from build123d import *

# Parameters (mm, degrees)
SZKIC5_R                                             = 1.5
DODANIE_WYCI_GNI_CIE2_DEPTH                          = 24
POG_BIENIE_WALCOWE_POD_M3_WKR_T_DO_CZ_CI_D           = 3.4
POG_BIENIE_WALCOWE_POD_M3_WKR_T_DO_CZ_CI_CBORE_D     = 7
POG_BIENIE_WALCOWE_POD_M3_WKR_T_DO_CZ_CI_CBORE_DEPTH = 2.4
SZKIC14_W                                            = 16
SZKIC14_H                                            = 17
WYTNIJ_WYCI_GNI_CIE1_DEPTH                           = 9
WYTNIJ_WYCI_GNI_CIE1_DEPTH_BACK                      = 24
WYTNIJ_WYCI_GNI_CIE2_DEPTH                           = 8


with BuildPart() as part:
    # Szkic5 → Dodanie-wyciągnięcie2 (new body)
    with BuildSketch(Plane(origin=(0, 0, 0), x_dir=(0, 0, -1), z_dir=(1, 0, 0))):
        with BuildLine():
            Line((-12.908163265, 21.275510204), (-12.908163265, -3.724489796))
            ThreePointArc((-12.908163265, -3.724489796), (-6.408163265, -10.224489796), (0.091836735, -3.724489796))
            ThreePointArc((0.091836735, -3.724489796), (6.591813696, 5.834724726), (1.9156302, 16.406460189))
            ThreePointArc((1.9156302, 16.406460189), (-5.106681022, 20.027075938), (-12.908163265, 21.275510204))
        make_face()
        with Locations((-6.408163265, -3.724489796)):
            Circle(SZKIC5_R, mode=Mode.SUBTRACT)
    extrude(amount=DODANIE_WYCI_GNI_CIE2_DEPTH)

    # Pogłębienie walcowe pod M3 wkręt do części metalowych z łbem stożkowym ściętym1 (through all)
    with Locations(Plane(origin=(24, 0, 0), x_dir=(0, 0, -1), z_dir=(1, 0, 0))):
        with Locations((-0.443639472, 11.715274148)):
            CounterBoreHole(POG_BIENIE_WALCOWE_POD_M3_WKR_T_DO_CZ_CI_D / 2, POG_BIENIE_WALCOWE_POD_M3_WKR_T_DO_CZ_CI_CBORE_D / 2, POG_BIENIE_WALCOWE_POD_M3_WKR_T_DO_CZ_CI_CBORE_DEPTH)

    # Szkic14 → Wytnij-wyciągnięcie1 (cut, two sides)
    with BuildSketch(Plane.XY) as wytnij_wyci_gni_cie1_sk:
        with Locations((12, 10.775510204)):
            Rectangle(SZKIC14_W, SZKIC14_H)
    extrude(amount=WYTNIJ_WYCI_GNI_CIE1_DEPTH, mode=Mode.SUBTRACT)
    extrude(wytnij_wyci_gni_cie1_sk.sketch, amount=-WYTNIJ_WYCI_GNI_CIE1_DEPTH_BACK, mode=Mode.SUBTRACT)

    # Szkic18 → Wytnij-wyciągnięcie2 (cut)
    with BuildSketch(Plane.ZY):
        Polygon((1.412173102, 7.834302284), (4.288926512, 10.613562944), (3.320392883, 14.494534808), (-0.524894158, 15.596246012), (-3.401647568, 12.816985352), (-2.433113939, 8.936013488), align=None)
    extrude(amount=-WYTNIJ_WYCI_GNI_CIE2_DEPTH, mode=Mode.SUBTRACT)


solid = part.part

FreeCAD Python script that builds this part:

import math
import FreeCAD as App
import Part
import Sketcher
from FreeCAD import Vector
Q = App.Units.Quantity


def add_polygon(sketch, points):
    """Adds a closed chain of lines whose ends are joined by coincident constraints."""
    first, n = sketch.GeometryCount, len(points)
    for a, b in zip(points, points[1:] + points[:1]):
        sketch.addGeometry(Part.LineSegment(App.Vector(*a, 0), App.Vector(*b, 0)), False)
    for i in range(n):
        sketch.addConstraint(Sketcher.Constraint("Coincident", first + i, 2, first + (i + 1) % n, 1))

doc = App.newDocument("Part")
body = doc.addObject("PartDesign::Body", "Body")

# Sketch on YZ plane
sketch1 = body.newObject("Sketcher::SketchObject", "Sketch")
sketch1.AttachmentSupport = (doc.getObject("YZ_Plane"), [""])
sketch1.MapMode = "FlatFace"
sketch1.addGeometry([
    Part.LineSegment(Vector(21.3, 12.9, 0), Vector(-3.7, 12.9, 0)),  # 0
    Part.ArcOfCircle(Part.Circle(Vector(-3.7, 6.4, 0), Vector(0, 0, 1), 6.5), math.radians(90), math.radians(270)),  # 1
    Part.ArcOfCircle(Part.Circle(Vector(6.9, 5.3, 0), Vector(0, 0, 1), 11.9), math.radians(-153), math.radians(-37)),  # 2
    Part.ArcOfCircle(Part.Circle(Vector(-3.7, 12.9, 0), Vector(0, 0, 1), 25), math.radians(-36), math.radians(0)),  # 3
    Part.Circle(Vector(-3.7, 6.4, 0), Vector(0, 0, 1), 1.5),  # 4
], False)
sketch1.addConstraint([
    Sketcher.Constraint("Tangent", 0, 2, 1, 1),
    Sketcher.Constraint("Coincident", 1, 2, 2, 1),
    Sketcher.Constraint("Coincident", 2, 2, 3, 1),
    Sketcher.Constraint("Coincident", 3, 2, 0, 1),
    Sketcher.Constraint("Horizontal", 0),
    Sketcher.Constraint("Coincident", 4, 3, 1, 3),
    Sketcher.Constraint("Coincident", 0, 2, 3, 3),
    Sketcher.Constraint("Vertical", 0, 2, 1, 2),
    Sketcher.Constraint("Diameter", 4, Q("3 mm")),
    Sketcher.Constraint("Radius", 3, Q("25 mm")),
    Sketcher.Constraint("Radius", 1, Q("6.5 mm")),
    Sketcher.Constraint("Radius", 2, Q("11.907779 mm")),
    Sketcher.Constraint("DistanceX", 1, 3, -1, 1, Q("3.72449 mm")),
    Sketcher.Constraint("DistanceX", -1, 1, 2, 2, Q("16.40646 mm")),
    Sketcher.Constraint("DistanceY", 2, 2, -1, 1, Q("1.91563 mm")),
])
pad1 = body.newObject("PartDesign::Pad", "Pad")
pad1.Profile = sketch1
pad1.Length = 24

# Sketch on YZ plane
sketch2 = body.newObject("Sketcher::SketchObject", "Sketch001")
sketch2.AttachmentSupport = (doc.getObject("YZ_Plane"), [""])
sketch2.MapMode = "FlatFace"
sketch2.AttachmentOffset = App.Placement(Vector(0, 0, 24), App.Rotation())
sketch2.addGeometry(Part.Circle(Vector(11.7, 0.4, 0), Vector(0, 0, 1), 1.7), False)
sketch2.addConstraint([
    Sketcher.Constraint("Diameter", 0, Q("3.4 mm")),
    Sketcher.Constraint("DistanceY", -1, 1, 0, 3, Q("0.443639 mm")),
    Sketcher.Constraint("DistanceX", -1, 1, 0, 3, Q("11.715274 mm")),
])
doc.recompute()
hole = body.newObject("PartDesign::Hole", "Hole")
hole.Profile = sketch2
hole.ThreadType = "None"
hole.Diameter = 3.4
hole.DepthType = "ThroughAll"
hole.HoleCutType = "Counterbore"
hole.HoleCutDiameter = 7
hole.HoleCutDepth = 2.4

# Sketch on XY plane
sketch3 = body.newObject("Sketcher::SketchObject", "Sketch002")
sketch3.AttachmentSupport = (doc.getObject("XY_Plane"), [""])
sketch3.MapMode = "FlatFace"
add_polygon(sketch3, [(4, 19), (4, 2), (20, 2), (20, 19)])  # lines 0-3
sketch3.addConstraint([
    Sketcher.Constraint("Vertical", 0),
    Sketcher.Constraint("Horizontal", 1),
    Sketcher.Constraint("Vertical", 2),
    Sketcher.Constraint("Horizontal", 3),
    Sketcher.Constraint("DistanceX", 1, 1, 1, 2, Q("16 mm")),
    Sketcher.Constraint("DistanceY", 0, 2, 0, 1, Q("17 mm")),
    Sketcher.Constraint("DistanceX", -1, 1, 0, 2, Q("4 mm")),
    Sketcher.Constraint("DistanceY", -1, 1, 0, 2, Q("2.27551 mm")),
])
pocket1 = body.newObject("PartDesign::Pocket", "Pocket")
pocket1.Profile = sketch3
pocket1.Type = "TwoLengths"
pocket1.Length = 9
pocket1.Length2 = 24
pocket1.Reversed = True

# Sketch on YZ plane
sketch4 = body.newObject("Sketcher::SketchObject", "Sketch003")
sketch4.AttachmentSupport = (doc.getObject("YZ_Plane"), [""])
sketch4.MapMode = "FlatFace"
add_polygon(sketch4, [(7.8, 1.4), (10.6, 4.3), (14.5, 3.3), (15.6, -0.5), (12.8, -3.4), (8.9, -2.4)])  # lines 0-5
sketch4.addConstraint([
    Sketcher.Constraint("Parallel", 0, 3),
    Sketcher.Constraint("Parallel", 1, 4),
    Sketcher.Constraint("Parallel", 2, 5),
    Sketcher.Constraint("Equal", 0, 1),
    Sketcher.Constraint("Equal", 1, 2),
    Sketcher.Constraint("Equal", 2, 3),
    Sketcher.Constraint("Distance", 0, Q("4 mm")),
    Sketcher.Constraint("DistanceX", 0, 2, 1, 2, Q("3.880972 mm")),
    Sketcher.Constraint("DistanceX", 1, 2, 2, 2, Q("1.101711 mm")),
    Sketcher.Constraint("DistanceX", 3, 2, 2, 2, Q("2.779261 mm")),
    Sketcher.Constraint("DistanceX", -1, 1, 0, 2, Q("10.613563 mm")),
    Sketcher.Constraint("DistanceY", -1, 1, 0, 2, Q("4.288927 mm")),
])
pocket2 = body.newObject("PartDesign::Pocket", "Pocket001")
pocket2.Profile = sketch4
pocket2.Length = 8
pocket2.Reversed = True

doc.recompute()
